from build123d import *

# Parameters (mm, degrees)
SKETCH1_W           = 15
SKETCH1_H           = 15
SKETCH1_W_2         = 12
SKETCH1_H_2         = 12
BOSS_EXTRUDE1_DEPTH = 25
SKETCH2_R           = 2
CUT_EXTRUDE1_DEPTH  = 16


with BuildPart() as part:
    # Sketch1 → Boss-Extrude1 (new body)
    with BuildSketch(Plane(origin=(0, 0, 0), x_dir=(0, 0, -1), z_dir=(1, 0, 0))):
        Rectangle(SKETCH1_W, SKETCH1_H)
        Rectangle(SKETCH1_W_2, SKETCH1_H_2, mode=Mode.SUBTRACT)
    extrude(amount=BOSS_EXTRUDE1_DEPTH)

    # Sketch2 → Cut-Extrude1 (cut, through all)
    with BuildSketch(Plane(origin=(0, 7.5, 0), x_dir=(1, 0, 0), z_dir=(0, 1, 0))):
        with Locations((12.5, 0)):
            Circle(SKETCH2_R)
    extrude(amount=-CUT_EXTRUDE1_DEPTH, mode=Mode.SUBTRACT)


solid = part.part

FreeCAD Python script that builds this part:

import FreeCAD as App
import Part
import Sketcher


def add_polygon(sketch, points):
    """Adds a closed chain of lines whose ends are joined by coincident constraints."""
    first, n = sketch.GeometryCount, len(points)
    for a, b in zip(points, points[1:] + points[:1]):
        sketch.addGeometry(Part.LineSegment(App.Vector(*a, 0), App.Vector(*b, 0)), False)
    for i in range(n):
        sketch.addConstraint(Sketcher.Constraint("Coincident", first + i, 2, first + (i + 1) % n, 1))

doc = App.newDocument("Part")
body = doc.addObject("PartDesign::Body", "Body")

# Sketch on YZ plane
sketch1 = body.newObject("Sketcher::SketchObject", "Sketch")
sketch1.AttachmentSupport = (doc.getObject("YZ_Plane"), [""])
sketch1.MapMode = "FlatFace"
add_polygon(sketch1, [(7.5, 7.5), (-7.5, 7.5), (-7.5, -7.5), (7.5, -7.5)])  # lines 0-3
add_polygon(sketch1, [(-6, -6), (-6, 6), (6, 6), (6, -6)])  # lines 4-7
sketch1.addConstraint(Sketcher.Constraint("Horizontal", 0))
sketch1.addConstraint(Sketcher.Constraint("Vertical", 1))
sketch1.addConstraint(Sketcher.Constraint("Horizontal", 2))
sketch1.addConstraint(Sketcher.Constraint("Vertical", 3))
sketch1.addConstraint(Sketcher.Constraint("Vertical", 4))
sketch1.addConstraint(Sketcher.Constraint("Horizontal", 5))
sketch1.addConstraint(Sketcher.Constraint("Vertical", 6))
sketch1.addConstraint(Sketcher.Constraint("Horizontal", 7))
sketch1.addConstraint(Sketcher.Constraint("Symmetric", 0, 2, 2, 2, -1, 1))
sketch1.addConstraint(Sketcher.Constraint("Symmetric", 4, 2, 6, 2, -1, 1))
sketch1.addConstraint(Sketcher.Constraint("Equal", 2, 1))
sketch1.addConstraint(Sketcher.Constraint("Equal", 7, 4))
sketch1.addConstraint(Sketcher.Constraint("DistanceX", 0, 2, 0, 1, 15.0))
sketch1.addConstraint(Sketcher.Constraint("DistanceX", 5, 1, 5, 2, 12.0))
pad1 = body.newObject("PartDesign::Pad", "Pad")
pad1.Profile = sketch1
pad1.Length = 25

# Sketch on XZ plane
sketch2 = body.newObject("Sketcher::SketchObject", "Sketch001")
sketch2.AttachmentSupport = (doc.getObject("XZ_Plane"), [""])
sketch2.MapMode = "FlatFace"
sketch2.AttachmentOffset = App.Placement(App.Vector(0, 0, -7.5), App.Rotation())
sketch2.addGeometry(Part.Circle(App.Vector(12.5, 0, 0), App.Vector(0, 0, 1), 2), False)
sketch2.addConstraint(Sketcher.Constraint("PointOnObject", 0, 3, -1))
sketch2.addConstraint(Sketcher.Constraint("Diameter", 0, 4.0))
sketch2.addConstraint(Sketcher.Constraint("DistanceX", -1, 1, 0, 3, 12.5))
pocket1 = body.newObject("PartDesign::Pocket", "Pocket")
pocket1.Profile = sketch2
pocket1.Type = "ThroughAll"
pocket1.Reversed = True

doc.recompute()
